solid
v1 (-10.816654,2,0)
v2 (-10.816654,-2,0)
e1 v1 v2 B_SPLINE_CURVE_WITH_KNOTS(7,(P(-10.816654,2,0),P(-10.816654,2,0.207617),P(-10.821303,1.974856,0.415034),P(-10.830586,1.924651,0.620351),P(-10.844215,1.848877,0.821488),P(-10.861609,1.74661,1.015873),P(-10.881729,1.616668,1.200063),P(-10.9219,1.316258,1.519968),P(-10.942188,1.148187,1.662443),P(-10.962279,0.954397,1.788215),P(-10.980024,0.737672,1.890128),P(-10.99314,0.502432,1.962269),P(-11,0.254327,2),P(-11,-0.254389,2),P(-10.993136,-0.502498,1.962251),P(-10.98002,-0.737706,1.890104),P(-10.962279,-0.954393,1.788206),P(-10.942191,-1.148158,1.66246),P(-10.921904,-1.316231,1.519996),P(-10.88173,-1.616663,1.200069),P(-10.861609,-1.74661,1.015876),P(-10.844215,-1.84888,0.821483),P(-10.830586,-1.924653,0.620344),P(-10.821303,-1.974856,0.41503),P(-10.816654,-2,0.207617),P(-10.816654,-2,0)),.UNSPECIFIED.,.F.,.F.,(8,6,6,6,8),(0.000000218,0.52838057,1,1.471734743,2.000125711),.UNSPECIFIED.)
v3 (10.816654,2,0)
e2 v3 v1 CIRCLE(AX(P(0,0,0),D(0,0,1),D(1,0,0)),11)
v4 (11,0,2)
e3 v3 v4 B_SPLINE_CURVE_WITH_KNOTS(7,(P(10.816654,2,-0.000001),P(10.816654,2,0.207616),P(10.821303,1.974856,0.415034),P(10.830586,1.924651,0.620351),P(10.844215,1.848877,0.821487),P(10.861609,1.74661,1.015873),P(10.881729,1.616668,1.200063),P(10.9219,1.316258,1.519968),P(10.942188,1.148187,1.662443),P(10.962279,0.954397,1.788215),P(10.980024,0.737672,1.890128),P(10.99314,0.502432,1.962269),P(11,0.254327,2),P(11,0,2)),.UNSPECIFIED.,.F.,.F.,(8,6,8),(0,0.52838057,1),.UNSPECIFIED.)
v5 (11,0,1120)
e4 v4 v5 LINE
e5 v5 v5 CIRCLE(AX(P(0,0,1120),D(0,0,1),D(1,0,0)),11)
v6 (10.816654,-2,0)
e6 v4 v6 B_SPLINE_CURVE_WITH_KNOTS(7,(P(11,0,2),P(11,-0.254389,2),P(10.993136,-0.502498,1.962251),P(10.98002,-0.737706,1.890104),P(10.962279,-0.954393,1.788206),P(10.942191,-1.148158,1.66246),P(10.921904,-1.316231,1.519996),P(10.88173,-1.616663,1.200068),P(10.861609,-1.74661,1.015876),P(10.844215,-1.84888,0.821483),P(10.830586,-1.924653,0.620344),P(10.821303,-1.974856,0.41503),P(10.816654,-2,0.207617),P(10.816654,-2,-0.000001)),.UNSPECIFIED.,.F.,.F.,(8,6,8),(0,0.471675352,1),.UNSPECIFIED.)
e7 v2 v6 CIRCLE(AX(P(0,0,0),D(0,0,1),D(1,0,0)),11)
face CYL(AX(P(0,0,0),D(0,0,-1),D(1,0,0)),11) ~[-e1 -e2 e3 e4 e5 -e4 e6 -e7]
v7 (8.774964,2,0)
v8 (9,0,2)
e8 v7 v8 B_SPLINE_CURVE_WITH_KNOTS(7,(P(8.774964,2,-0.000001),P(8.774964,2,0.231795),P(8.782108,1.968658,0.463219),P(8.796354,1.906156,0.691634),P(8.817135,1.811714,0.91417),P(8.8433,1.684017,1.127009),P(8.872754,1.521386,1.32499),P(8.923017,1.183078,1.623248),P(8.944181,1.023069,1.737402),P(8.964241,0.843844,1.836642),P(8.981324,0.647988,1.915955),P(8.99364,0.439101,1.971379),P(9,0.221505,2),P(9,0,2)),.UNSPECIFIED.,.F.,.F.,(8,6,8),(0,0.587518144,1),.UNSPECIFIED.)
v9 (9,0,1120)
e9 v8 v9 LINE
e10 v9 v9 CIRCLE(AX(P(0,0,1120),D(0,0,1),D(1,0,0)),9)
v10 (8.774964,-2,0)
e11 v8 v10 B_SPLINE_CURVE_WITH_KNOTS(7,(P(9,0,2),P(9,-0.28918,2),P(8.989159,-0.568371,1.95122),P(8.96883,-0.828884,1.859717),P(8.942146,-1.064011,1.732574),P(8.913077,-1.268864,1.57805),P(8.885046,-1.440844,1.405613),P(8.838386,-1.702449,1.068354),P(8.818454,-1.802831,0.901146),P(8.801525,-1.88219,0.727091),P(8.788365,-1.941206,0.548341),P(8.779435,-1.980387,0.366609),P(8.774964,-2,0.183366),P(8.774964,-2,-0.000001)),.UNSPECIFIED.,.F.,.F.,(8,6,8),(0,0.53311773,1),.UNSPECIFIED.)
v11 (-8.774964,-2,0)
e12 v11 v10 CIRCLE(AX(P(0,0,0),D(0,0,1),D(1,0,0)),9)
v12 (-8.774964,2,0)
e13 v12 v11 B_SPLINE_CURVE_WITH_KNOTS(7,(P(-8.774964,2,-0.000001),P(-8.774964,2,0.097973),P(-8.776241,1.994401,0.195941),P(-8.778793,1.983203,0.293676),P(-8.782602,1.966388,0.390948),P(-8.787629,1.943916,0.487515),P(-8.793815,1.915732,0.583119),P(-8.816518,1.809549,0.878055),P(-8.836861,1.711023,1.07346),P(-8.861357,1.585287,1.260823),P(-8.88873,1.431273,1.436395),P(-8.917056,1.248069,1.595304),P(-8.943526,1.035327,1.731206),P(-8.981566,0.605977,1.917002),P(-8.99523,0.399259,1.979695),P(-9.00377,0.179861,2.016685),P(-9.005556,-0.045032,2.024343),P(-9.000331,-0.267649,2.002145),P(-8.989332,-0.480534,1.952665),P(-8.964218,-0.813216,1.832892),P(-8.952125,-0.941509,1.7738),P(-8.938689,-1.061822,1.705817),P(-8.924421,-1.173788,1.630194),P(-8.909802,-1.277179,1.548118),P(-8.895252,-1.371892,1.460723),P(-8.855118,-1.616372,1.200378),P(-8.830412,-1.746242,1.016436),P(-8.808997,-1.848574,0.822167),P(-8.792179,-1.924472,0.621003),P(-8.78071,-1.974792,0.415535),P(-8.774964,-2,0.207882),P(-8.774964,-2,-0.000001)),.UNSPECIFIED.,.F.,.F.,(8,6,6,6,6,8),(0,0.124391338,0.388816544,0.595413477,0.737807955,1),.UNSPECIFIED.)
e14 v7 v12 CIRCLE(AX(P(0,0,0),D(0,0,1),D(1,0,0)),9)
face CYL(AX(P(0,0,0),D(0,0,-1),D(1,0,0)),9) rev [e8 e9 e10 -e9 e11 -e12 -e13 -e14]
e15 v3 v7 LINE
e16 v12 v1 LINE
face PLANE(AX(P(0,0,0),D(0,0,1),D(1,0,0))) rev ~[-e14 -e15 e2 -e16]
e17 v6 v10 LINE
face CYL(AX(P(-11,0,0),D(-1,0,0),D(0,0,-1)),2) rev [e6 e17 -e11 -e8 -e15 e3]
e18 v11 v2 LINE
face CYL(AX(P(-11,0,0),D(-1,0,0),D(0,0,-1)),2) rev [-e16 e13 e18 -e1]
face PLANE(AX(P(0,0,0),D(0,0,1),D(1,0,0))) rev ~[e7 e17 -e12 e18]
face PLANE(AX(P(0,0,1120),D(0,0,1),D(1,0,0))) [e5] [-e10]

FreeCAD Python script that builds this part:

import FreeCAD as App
import Part
import Sketcher

V = App.Vector
Q = App.Units.Quantity

doc = App.newDocument("Part")
body = doc.addObject("PartDesign::Body", "Body")

# Sketch on YZ plane
sketch1 = body.newObject("Sketcher::SketchObject", "Sketch")
sketch1.AttachmentSupport = (doc.getObject("YZ_Plane"), [""])
sketch1.MapMode = "FlatFace"
sketch1.AttachmentOffset = App.Placement(V(0, 0, -11), App.Rotation())
sketch1.addGeometry(Part.Circle(V(0, 0, 0), V(0, 0, 1), 2), False)
sketch1.addConstraint([
    Sketcher.Constraint("Coincident", 0, 3, -1, 1),
    Sketcher.Constraint("Diameter", 0, Q("4 mm")),
])
pad1 = body.newObject("PartDesign::Pad", "Pad")
pad1.Profile = sketch1
pad1.Length = 22
body2 = doc.addObject("PartDesign::Body", "Body001")

# Sketch on XY plane
sketch2 = body2.newObject("Sketcher::SketchObject", "Sketch001")
sketch2.AttachmentSupport = (doc.getObject("XY_Plane001"), [""])
sketch2.MapMode = "FlatFace"
sketch2.addGeometry(Part.Circle(V(0, 0, 0), V(0, 0, 1), 9), False)
sketch2.addConstraint([
    Sketcher.Constraint("Coincident", 0, 3, -1, 1),
    Sketcher.Constraint("Diameter", 0, Q("18 mm")),
])
pad2 = body2.newObject("PartDesign::Pad", "Pad001")
pad2.Profile = sketch2
pad2.Length = 1120
body3 = doc.addObject("PartDesign::Body", "Body002")

# Sketch on XY plane
sketch3 = body3.newObject("Sketcher::SketchObject", "Sketch002")
sketch3.AttachmentSupport = (doc.getObject("XY_Plane002"), [""])
sketch3.MapMode = "FlatFace"
sketch3.addGeometry(Part.Circle(V(0, 0, 0), V(0, 0, 1), 11), False)
sketch3.addConstraint([
    Sketcher.Constraint("Coincident", 0, 3, -1, 1),
    Sketcher.Constraint("Diameter", 0, Q("22 mm")),
])
pad3 = body3.newObject("PartDesign::Pad", "Pad002")
pad3.Profile = sketch3
pad3.Length = 1120
doc.recompute()

boolean = body3.newObject("PartDesign::Boolean", "Boolean")
boolean.Type = "Cut"
boolean.addObjects([body2])
doc.recompute()

boolean2 = body3.newObject("PartDesign::Boolean", "Boolean001")
boolean2.Type = "Cut"
boolean2.addObjects([body])

doc.recompute()
